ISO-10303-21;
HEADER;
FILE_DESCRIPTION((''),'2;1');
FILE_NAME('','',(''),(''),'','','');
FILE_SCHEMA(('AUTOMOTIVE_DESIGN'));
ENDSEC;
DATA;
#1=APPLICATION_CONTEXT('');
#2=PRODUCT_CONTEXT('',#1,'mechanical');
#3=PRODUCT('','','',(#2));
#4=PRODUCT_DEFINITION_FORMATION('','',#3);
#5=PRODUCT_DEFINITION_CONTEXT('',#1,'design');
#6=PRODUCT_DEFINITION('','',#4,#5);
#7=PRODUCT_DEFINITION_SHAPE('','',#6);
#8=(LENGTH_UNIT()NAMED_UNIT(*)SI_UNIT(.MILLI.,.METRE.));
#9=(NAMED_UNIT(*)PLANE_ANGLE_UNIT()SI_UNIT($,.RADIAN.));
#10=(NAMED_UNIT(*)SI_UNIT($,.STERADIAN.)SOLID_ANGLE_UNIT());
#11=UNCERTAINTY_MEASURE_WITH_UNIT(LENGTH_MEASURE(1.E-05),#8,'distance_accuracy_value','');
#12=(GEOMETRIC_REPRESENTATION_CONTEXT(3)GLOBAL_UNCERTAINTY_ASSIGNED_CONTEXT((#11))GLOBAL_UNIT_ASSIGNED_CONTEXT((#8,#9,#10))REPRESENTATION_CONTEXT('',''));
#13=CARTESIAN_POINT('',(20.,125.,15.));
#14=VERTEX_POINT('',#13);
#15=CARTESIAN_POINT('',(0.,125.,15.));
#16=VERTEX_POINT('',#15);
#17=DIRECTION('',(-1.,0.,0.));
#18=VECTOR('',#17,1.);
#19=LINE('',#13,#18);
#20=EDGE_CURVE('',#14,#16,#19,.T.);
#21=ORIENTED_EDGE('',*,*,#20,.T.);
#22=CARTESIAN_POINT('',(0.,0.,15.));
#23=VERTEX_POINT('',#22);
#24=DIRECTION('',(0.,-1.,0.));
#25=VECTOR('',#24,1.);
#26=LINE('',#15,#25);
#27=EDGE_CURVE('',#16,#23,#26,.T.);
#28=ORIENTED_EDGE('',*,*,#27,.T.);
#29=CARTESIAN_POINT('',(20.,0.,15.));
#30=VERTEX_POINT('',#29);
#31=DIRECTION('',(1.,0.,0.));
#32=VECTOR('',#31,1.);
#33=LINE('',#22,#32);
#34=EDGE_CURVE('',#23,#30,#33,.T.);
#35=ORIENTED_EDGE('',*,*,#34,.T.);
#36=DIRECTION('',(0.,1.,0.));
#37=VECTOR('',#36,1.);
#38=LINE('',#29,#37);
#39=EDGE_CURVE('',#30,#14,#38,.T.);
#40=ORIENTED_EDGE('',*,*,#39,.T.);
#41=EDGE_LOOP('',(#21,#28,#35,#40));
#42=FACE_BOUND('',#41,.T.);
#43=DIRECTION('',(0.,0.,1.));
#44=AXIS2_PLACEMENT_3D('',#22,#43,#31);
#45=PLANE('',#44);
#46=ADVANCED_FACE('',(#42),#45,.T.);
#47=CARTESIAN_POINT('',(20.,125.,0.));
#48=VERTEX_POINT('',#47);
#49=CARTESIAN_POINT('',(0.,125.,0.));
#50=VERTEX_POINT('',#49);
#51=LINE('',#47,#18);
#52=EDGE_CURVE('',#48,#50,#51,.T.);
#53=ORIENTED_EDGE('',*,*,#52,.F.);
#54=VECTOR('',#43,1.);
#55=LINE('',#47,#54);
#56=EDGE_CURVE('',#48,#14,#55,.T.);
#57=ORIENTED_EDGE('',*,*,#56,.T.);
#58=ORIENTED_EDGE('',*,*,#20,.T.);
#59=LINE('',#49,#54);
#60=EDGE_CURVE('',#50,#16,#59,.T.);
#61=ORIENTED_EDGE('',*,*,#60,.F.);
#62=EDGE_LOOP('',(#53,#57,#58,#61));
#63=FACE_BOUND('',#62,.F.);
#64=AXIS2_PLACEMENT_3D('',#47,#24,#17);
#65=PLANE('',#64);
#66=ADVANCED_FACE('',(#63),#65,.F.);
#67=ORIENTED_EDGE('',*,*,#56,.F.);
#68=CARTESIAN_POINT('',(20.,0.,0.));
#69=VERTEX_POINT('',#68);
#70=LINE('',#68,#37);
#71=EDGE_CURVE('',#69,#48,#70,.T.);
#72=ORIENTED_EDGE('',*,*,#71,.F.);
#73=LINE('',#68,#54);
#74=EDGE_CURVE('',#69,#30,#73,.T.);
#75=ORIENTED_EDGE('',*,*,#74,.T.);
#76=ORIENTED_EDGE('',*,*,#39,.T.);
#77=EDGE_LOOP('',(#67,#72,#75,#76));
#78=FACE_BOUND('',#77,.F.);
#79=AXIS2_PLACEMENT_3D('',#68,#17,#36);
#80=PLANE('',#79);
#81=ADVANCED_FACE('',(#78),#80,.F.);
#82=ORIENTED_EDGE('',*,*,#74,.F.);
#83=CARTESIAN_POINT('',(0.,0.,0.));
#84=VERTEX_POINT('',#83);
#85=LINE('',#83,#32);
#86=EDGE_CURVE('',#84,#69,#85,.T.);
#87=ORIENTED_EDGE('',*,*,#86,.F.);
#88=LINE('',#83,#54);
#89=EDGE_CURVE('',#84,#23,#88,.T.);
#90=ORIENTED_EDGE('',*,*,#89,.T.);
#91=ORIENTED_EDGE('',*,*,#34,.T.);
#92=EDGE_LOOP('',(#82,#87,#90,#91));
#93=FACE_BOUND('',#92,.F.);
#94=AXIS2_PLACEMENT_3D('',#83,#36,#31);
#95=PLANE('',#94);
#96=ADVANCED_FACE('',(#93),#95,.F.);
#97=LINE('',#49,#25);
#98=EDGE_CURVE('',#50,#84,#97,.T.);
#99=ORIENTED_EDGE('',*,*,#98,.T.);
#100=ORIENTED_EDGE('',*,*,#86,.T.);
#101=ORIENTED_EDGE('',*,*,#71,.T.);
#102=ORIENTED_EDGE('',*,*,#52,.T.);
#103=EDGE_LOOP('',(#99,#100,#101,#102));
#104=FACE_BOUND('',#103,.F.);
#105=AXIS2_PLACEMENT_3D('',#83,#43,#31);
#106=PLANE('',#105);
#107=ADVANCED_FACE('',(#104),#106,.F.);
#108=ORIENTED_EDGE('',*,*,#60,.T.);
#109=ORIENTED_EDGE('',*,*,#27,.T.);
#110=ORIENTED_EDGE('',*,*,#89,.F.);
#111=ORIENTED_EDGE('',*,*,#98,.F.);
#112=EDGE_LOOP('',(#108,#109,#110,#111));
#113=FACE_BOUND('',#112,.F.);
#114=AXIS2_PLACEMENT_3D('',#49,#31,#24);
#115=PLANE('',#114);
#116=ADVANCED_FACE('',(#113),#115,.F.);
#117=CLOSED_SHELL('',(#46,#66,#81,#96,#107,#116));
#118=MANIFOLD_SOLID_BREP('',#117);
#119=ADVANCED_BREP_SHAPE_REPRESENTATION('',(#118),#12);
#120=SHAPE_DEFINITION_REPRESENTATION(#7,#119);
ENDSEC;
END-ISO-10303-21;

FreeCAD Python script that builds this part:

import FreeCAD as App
import Part
import Sketcher


def add_polygon(sketch, points):
    """Adds a closed chain of lines whose ends are joined by coincident constraints."""
    first, n = sketch.GeometryCount, len(points)
    for a, b in zip(points, points[1:] + points[:1]):
        sketch.addGeometry(Part.LineSegment(App.Vector(*a, 0), App.Vector(*b, 0)), False)
    for i in range(n):
        sketch.addConstraint(Sketcher.Constraint("Coincident", first + i, 2, first + (i + 1) % n, 1))

doc = App.newDocument("Part")
body = doc.addObject("PartDesign::Body", "Body")

sketch1 = doc.addObject("Sketcher::SketchObject", "Sketch")
body.addObject(sketch1)
sketch1.AttachmentSupport = (doc.XY_Plane, [""])
sketch1.MapMode = "FlatFace"
add_polygon(sketch1, [(0, 125), (0, 0), (20, 0), (20, 125)])
sketch1.addConstraint([
    Sketcher.Constraint("Vertical", 0),
    Sketcher.Constraint("Horizontal", 1),
    Sketcher.Constraint("Vertical", 2),
    Sketcher.Constraint("Horizontal", 3),
    Sketcher.Constraint("Coincident", 0, 2, -1, 1),
    Sketcher.Constraint("DistanceX", 1, 1, 1, 2, 20.0),
    Sketcher.Constraint("DistanceY", 0, 2, 0, 1, 125.0),
])
pad1 = doc.addObject("PartDesign::Pad", "Pad")
body.addObject(pad1)
pad1.Profile = sketch1
pad1.Length = 15

doc.recompute()
